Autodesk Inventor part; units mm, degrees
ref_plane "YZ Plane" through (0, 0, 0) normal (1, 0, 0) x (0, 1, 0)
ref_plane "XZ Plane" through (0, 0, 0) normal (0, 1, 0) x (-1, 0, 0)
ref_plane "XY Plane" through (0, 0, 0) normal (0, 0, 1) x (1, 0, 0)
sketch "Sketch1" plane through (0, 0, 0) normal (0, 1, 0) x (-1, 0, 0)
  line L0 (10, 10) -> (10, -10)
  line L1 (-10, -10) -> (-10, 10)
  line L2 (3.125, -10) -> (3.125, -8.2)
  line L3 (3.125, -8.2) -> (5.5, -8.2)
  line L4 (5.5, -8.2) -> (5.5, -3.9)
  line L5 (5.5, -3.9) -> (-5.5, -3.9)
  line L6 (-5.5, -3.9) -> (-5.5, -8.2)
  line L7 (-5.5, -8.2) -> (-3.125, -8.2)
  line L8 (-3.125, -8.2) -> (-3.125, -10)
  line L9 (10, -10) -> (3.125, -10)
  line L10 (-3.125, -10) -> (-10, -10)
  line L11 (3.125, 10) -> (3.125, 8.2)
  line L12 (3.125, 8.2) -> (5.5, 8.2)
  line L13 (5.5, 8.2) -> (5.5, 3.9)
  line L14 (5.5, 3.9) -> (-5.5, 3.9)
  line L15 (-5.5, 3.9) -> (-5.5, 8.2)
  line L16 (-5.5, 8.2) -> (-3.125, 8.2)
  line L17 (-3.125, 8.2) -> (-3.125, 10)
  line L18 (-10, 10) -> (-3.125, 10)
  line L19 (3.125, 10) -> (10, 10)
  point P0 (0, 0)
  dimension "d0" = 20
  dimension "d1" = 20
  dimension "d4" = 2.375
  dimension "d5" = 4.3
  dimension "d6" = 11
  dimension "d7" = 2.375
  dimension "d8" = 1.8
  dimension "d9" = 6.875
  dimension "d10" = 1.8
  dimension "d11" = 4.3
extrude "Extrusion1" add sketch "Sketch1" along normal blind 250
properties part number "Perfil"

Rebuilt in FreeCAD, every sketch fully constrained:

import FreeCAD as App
import Part
import Sketcher
Q = App.Units.Quantity


def add_polygon(sketch, points):
    """Adds a closed chain of lines whose ends are joined by coincident constraints."""
    first, n = sketch.GeometryCount, len(points)
    for a, b in zip(points, points[1:] + points[:1]):
        sketch.addGeometry(Part.LineSegment(App.Vector(*a, 0), App.Vector(*b, 0)), False)
    for i in range(n):
        sketch.addConstraint(Sketcher.Constraint("Coincident", first + i, 2, first + (i + 1) % n, 1))

doc = App.newDocument("Part")
params = doc.addObject("Spreadsheet::Sheet", "Params")
for row, (alias, value) in enumerate([
    ("sketch1_width", "11 mm"),
    ("sketch1_height", "20 mm"),
    ("sketch1_height2", "1.8 mm"),
    ("sketch1_height3", "4.3 mm"),
    ("pad1_length", "250 mm"),
], start=1):
    params.set(f"A{row}", alias)
    params.set(f"B{row}", "=" + value)
    params.setAlias(f"B{row}", alias)

body = doc.addObject("PartDesign::Body", "Body")

sketch1 = doc.addObject("Sketcher::SketchObject", "Sketch")
body.addObject(sketch1)
sketch1.AttachmentSupport = (doc.XZ_Plane, [""])
sketch1.MapMode = "FlatFace"
add_polygon(sketch1, [(-10, -10), (-10, 10), (-3.1, 10), (-3.1, 8.2), (-5.5, 8.2), (-5.5, 3.9), (5.5, 3.9), (5.5, 8.2), (3.1, 8.2), (3.1, 10), (10, 10), (10, -10), (3.1, -10), (3.1, -8.2), (5.5, -8.2), (5.5, -3.9), (-5.5, -3.9), (-5.5, -8.2), (-3.1, -8.2), (-3.1, -10)])
sketch1.addConstraint([
    Sketcher.Constraint("Vertical", 0),
    Sketcher.Constraint("Horizontal", 1),
    Sketcher.Constraint("Vertical", 2),
    Sketcher.Constraint("Horizontal", 3),
    Sketcher.Constraint("Vertical", 4),
    Sketcher.Constraint("Horizontal", 5),
    Sketcher.Constraint("Vertical", 6),
    Sketcher.Constraint("Horizontal", 7),
    Sketcher.Constraint("Vertical", 8),
    Sketcher.Constraint("Horizontal", 9),
    Sketcher.Constraint("Vertical", 10),
    Sketcher.Constraint("Horizontal", 11),
    Sketcher.Constraint("Vertical", 12),
    Sketcher.Constraint("Horizontal", 13),
    Sketcher.Constraint("Vertical", 14),
    Sketcher.Constraint("Horizontal", 15),
    Sketcher.Constraint("Vertical", 16),
    Sketcher.Constraint("Horizontal", 17),
    Sketcher.Constraint("Vertical", 18),
    Sketcher.Constraint("Horizontal", 19),
    Sketcher.Constraint("Symmetric", 0, 2, 10, 2, -1, 1),
    Sketcher.Constraint("Symmetric", 2, 2, 12, 2, -1, 1),
    Sketcher.Constraint("Symmetric", 4, 2, 14, 2, -1, 1),
    Sketcher.Constraint("Symmetric", 6, 2, 16, 2, -1, 1),
    Sketcher.Constraint("Symmetric", 8, 2, 18, 2, -1, 1),
    Sketcher.Constraint("Symmetric", 3, 2, 6, 2, -2),
    Sketcher.Constraint("Symmetric", 1, 2, 8, 2, -2),
    Sketcher.Constraint("DistanceX", 5, 1, 5, 2, Q("11 mm")),
    Sketcher.Constraint("DistanceY", 0, 1, 0, 2, Q("20 mm")),
    Sketcher.Constraint("DistanceY", 2, 2, 2, 1, Q("1.8 mm")),
    Sketcher.Constraint("DistanceY", 4, 2, 4, 1, Q("4.3 mm")),
    Sketcher.Constraint("DistanceX", 1, 1, 1, 2, Q("6.875 mm")),
    Sketcher.Constraint("DistanceX", 3, 2, 3, 1, Q("2.375 mm")),
])
sketch1.setExpression("Constraints[47]", "Params.sketch1_width")
sketch1.setExpression("Constraints[48]", "Params.sketch1_height")
sketch1.setExpression("Constraints[49]", "Params.sketch1_height2")
sketch1.setExpression("Constraints[50]", "Params.sketch1_height3")
pad1 = doc.addObject("PartDesign::Pad", "Pad")
body.addObject(pad1)
pad1.Profile = sketch1
pad1.setExpression("Length", "Params.pad1_length")
pad1.Reversed = True

doc.recompute()
